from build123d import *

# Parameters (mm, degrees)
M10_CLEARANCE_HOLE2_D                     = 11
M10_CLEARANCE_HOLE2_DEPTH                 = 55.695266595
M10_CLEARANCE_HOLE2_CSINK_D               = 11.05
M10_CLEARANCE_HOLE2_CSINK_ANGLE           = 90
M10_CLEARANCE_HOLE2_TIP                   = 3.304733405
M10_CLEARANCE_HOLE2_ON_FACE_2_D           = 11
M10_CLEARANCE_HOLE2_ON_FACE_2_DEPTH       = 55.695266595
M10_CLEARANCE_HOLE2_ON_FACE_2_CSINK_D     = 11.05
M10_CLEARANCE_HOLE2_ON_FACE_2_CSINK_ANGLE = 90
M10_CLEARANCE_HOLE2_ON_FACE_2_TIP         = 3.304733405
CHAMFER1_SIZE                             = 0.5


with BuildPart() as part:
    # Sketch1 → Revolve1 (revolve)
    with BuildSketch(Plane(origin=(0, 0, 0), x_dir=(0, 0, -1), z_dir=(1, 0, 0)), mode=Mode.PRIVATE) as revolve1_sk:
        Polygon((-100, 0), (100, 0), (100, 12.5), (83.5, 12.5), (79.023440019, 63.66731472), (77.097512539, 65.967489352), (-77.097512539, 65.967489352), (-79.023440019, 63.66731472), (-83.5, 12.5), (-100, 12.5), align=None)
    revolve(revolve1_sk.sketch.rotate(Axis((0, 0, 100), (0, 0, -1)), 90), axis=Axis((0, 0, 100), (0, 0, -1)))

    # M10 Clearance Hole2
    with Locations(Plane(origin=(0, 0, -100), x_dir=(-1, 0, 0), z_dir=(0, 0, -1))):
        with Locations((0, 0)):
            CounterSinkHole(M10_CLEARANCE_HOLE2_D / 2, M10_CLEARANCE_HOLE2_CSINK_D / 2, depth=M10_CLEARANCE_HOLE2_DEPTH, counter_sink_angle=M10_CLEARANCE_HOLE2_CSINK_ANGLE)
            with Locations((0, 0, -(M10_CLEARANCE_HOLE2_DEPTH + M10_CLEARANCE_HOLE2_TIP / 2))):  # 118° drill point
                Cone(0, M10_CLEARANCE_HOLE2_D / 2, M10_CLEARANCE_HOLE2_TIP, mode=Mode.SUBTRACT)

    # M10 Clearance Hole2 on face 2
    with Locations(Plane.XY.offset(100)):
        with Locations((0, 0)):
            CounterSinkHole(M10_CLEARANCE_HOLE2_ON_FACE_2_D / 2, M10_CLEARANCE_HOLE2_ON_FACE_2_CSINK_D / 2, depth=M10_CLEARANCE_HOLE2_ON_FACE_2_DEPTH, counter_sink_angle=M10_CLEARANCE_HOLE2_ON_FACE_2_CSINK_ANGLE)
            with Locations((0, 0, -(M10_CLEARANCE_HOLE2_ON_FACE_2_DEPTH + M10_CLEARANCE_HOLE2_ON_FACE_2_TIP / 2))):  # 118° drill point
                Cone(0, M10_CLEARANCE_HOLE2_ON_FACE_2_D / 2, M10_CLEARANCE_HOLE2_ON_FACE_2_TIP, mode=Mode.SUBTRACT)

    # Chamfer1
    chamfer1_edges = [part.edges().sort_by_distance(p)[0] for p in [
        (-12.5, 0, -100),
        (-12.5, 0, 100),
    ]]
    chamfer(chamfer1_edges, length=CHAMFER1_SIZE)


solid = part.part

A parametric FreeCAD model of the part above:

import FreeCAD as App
import Part
import Sketcher

V = App.Vector
Q = App.Units.Quantity


def edges_at(feature, points):
    """Names of the edges that pass closest to the given points."""
    edges = feature.Shape.Edges
    near = lambda p: min(range(len(edges)), key=lambda i: edges[i].distToShape(Part.Vertex(*p))[0])
    return sorted({f"Edge{near(p) + 1}" for p in points})

doc = App.newDocument("Part")
body = doc.addObject("PartDesign::Body", "Body")

# Sketch on YZ plane
sketch1 = body.newObject("Sketcher::SketchObject", "Sketch")
sketch1.AttachmentSupport = (doc.getObject("YZ_Plane"), [""])
sketch1.MapMode = "FlatFace"
sketch1.addGeometry([
    Part.LineSegment(V(0, 100, 0), V(0, -100, 0)),  # 0
    Part.LineSegment(V(0, -100, 0), V(12.5, -100, 0)),  # 1
    Part.LineSegment(V(12.5, -100, 0), V(12.5, -83.5, 0)),  # 2
    Part.LineSegment(V(12.5, -83.5, 0), V(63.7, -79, 0)),  # 3
    Part.LineSegment(V(63.7, -79, 0), V(66, -77.1, 0)),  # 4
    Part.LineSegment(V(66, -77.1, 0), V(66, 77.1, 0)),  # 5
    Part.LineSegment(V(66, 77.1, 0), V(63.7, 79, 0)),  # 6
    Part.LineSegment(V(63.7, 79, 0), V(12.5, 83.5, 0)),  # 7
    Part.LineSegment(V(12.5, 83.5, 0), V(12.5, 100, 0)),  # 8
    Part.LineSegment(V(12.5, 100, 0), V(0, 100, 0)),  # 9
], False)
sketch1.addConstraint([
    Sketcher.Constraint("Coincident", 0, 2, 1, 1),
    Sketcher.Constraint("Coincident", 1, 2, 2, 1),
    Sketcher.Constraint("Coincident", 2, 2, 3, 1),
    Sketcher.Constraint("Coincident", 3, 2, 4, 1),
    Sketcher.Constraint("Coincident", 4, 2, 5, 1),
    Sketcher.Constraint("Coincident", 5, 2, 6, 1),
    Sketcher.Constraint("Coincident", 6, 2, 7, 1),
    Sketcher.Constraint("Coincident", 7, 2, 8, 1),
    Sketcher.Constraint("Coincident", 8, 2, 9, 1),
    Sketcher.Constraint("Coincident", 9, 2, 0, 1),
    Sketcher.Constraint("Vertical", 0),
    Sketcher.Constraint("Horizontal", 1),
    Sketcher.Constraint("Vertical", 2),
    Sketcher.Constraint("Vertical", 5),
    Sketcher.Constraint("Vertical", 8),
    Sketcher.Constraint("Horizontal", 9),
    Sketcher.Constraint("Symmetric", 0, 2, 9, 2, -1, 1),
    Sketcher.Constraint("Symmetric", 3, 2, 6, 2, -1),
    Sketcher.Constraint("Symmetric", 2, 2, 7, 2, -1),
    Sketcher.Constraint("Equal", 4, 6),
    Sketcher.Constraint("DistanceY", 0, 2, 0, 1, Q("200 mm")),
    Sketcher.Constraint("Angle", 3, Q("5 deg")),
    Sketcher.Constraint("Distance", 4, Q("3 mm")),
    Sketcher.Constraint("DistanceX", 1, 1, 1, 2, Q("12.5 mm")),
    Sketcher.Constraint("DistanceY", 2, 1, 2, 2, Q("16.5 mm")),
    Sketcher.Constraint("DistanceY", 5, 1, 5, 2, Q("154.195025 mm")),
    Sketcher.Constraint("DistanceY", 3, 2, -1, 1, Q("79.02344 mm")),
])
revolution = body.newObject("PartDesign::Revolution", "Revolution")
revolution.Profile = sketch1
revolution.ReferenceAxis = (sketch1, ["V_Axis"])
revolution.Angle = 360

# Sketch on XY plane
sketch2 = body.newObject("Sketcher::SketchObject", "Sketch001")
sketch2.AttachmentSupport = (doc.getObject("XY_Plane"), [""])
sketch2.MapMode = "FlatFace"
sketch2.AttachmentOffset = App.Placement(V(0, 0, -100), App.Rotation())
sketch2.addGeometry(Part.Circle(V(0, 0, 0), V(0, 0, 1), 6), False)
sketch2.addConstraint([
    Sketcher.Constraint("Coincident", 0, 3, -1, 1),
    Sketcher.Constraint("Diameter", 0, Q("11 mm")),
])
doc.recompute()
hole = body.newObject("PartDesign::Hole", "Hole")
hole.Profile = sketch2
hole.ThreadType = "None"
hole.Diameter = 11
hole.DepthType = "Dimension"
hole.Depth = 55.695267
hole.DrillPoint = "Angled"
hole.DrillPointAngle = 118
hole.HoleCutType = "Countersink"
hole.HoleCutDiameter = 11.05
hole.HoleCutCountersinkAngle = 90
hole.Reversed = True

# Sketch on XY plane
sketch3 = body.newObject("Sketcher::SketchObject", "Sketch002")
sketch3.AttachmentSupport = (doc.getObject("XY_Plane"), [""])
sketch3.MapMode = "FlatFace"
sketch3.AttachmentOffset = App.Placement(V(0, 0, 100), App.Rotation())
sketch3.addGeometry(Part.Circle(V(0, 0, 0), V(0, 0, 1), 6), False)
sketch3.addConstraint([
    Sketcher.Constraint("Coincident", 0, 3, -1, 1),
    Sketcher.Constraint("Diameter", 0, Q("11 mm")),
])
doc.recompute()
hole2 = body.newObject("PartDesign::Hole", "Hole001")
hole2.Profile = sketch3
hole2.ThreadType = "None"
hole2.Diameter = 11
hole2.DepthType = "Dimension"
hole2.Depth = 55.695267
hole2.DrillPoint = "Angled"
hole2.DrillPointAngle = 118
hole2.HoleCutType = "Countersink"
hole2.HoleCutDiameter = 11.05
hole2.HoleCutCountersinkAngle = 90
doc.recompute()

chamfer = body.newObject("PartDesign::Chamfer", "Chamfer")
chamfer.Base = (hole2, edges_at(hole2, [(-12.5, 0, -100), (-12.5, 0, 100)]))
chamfer.Size = 0.5

doc.recompute()
